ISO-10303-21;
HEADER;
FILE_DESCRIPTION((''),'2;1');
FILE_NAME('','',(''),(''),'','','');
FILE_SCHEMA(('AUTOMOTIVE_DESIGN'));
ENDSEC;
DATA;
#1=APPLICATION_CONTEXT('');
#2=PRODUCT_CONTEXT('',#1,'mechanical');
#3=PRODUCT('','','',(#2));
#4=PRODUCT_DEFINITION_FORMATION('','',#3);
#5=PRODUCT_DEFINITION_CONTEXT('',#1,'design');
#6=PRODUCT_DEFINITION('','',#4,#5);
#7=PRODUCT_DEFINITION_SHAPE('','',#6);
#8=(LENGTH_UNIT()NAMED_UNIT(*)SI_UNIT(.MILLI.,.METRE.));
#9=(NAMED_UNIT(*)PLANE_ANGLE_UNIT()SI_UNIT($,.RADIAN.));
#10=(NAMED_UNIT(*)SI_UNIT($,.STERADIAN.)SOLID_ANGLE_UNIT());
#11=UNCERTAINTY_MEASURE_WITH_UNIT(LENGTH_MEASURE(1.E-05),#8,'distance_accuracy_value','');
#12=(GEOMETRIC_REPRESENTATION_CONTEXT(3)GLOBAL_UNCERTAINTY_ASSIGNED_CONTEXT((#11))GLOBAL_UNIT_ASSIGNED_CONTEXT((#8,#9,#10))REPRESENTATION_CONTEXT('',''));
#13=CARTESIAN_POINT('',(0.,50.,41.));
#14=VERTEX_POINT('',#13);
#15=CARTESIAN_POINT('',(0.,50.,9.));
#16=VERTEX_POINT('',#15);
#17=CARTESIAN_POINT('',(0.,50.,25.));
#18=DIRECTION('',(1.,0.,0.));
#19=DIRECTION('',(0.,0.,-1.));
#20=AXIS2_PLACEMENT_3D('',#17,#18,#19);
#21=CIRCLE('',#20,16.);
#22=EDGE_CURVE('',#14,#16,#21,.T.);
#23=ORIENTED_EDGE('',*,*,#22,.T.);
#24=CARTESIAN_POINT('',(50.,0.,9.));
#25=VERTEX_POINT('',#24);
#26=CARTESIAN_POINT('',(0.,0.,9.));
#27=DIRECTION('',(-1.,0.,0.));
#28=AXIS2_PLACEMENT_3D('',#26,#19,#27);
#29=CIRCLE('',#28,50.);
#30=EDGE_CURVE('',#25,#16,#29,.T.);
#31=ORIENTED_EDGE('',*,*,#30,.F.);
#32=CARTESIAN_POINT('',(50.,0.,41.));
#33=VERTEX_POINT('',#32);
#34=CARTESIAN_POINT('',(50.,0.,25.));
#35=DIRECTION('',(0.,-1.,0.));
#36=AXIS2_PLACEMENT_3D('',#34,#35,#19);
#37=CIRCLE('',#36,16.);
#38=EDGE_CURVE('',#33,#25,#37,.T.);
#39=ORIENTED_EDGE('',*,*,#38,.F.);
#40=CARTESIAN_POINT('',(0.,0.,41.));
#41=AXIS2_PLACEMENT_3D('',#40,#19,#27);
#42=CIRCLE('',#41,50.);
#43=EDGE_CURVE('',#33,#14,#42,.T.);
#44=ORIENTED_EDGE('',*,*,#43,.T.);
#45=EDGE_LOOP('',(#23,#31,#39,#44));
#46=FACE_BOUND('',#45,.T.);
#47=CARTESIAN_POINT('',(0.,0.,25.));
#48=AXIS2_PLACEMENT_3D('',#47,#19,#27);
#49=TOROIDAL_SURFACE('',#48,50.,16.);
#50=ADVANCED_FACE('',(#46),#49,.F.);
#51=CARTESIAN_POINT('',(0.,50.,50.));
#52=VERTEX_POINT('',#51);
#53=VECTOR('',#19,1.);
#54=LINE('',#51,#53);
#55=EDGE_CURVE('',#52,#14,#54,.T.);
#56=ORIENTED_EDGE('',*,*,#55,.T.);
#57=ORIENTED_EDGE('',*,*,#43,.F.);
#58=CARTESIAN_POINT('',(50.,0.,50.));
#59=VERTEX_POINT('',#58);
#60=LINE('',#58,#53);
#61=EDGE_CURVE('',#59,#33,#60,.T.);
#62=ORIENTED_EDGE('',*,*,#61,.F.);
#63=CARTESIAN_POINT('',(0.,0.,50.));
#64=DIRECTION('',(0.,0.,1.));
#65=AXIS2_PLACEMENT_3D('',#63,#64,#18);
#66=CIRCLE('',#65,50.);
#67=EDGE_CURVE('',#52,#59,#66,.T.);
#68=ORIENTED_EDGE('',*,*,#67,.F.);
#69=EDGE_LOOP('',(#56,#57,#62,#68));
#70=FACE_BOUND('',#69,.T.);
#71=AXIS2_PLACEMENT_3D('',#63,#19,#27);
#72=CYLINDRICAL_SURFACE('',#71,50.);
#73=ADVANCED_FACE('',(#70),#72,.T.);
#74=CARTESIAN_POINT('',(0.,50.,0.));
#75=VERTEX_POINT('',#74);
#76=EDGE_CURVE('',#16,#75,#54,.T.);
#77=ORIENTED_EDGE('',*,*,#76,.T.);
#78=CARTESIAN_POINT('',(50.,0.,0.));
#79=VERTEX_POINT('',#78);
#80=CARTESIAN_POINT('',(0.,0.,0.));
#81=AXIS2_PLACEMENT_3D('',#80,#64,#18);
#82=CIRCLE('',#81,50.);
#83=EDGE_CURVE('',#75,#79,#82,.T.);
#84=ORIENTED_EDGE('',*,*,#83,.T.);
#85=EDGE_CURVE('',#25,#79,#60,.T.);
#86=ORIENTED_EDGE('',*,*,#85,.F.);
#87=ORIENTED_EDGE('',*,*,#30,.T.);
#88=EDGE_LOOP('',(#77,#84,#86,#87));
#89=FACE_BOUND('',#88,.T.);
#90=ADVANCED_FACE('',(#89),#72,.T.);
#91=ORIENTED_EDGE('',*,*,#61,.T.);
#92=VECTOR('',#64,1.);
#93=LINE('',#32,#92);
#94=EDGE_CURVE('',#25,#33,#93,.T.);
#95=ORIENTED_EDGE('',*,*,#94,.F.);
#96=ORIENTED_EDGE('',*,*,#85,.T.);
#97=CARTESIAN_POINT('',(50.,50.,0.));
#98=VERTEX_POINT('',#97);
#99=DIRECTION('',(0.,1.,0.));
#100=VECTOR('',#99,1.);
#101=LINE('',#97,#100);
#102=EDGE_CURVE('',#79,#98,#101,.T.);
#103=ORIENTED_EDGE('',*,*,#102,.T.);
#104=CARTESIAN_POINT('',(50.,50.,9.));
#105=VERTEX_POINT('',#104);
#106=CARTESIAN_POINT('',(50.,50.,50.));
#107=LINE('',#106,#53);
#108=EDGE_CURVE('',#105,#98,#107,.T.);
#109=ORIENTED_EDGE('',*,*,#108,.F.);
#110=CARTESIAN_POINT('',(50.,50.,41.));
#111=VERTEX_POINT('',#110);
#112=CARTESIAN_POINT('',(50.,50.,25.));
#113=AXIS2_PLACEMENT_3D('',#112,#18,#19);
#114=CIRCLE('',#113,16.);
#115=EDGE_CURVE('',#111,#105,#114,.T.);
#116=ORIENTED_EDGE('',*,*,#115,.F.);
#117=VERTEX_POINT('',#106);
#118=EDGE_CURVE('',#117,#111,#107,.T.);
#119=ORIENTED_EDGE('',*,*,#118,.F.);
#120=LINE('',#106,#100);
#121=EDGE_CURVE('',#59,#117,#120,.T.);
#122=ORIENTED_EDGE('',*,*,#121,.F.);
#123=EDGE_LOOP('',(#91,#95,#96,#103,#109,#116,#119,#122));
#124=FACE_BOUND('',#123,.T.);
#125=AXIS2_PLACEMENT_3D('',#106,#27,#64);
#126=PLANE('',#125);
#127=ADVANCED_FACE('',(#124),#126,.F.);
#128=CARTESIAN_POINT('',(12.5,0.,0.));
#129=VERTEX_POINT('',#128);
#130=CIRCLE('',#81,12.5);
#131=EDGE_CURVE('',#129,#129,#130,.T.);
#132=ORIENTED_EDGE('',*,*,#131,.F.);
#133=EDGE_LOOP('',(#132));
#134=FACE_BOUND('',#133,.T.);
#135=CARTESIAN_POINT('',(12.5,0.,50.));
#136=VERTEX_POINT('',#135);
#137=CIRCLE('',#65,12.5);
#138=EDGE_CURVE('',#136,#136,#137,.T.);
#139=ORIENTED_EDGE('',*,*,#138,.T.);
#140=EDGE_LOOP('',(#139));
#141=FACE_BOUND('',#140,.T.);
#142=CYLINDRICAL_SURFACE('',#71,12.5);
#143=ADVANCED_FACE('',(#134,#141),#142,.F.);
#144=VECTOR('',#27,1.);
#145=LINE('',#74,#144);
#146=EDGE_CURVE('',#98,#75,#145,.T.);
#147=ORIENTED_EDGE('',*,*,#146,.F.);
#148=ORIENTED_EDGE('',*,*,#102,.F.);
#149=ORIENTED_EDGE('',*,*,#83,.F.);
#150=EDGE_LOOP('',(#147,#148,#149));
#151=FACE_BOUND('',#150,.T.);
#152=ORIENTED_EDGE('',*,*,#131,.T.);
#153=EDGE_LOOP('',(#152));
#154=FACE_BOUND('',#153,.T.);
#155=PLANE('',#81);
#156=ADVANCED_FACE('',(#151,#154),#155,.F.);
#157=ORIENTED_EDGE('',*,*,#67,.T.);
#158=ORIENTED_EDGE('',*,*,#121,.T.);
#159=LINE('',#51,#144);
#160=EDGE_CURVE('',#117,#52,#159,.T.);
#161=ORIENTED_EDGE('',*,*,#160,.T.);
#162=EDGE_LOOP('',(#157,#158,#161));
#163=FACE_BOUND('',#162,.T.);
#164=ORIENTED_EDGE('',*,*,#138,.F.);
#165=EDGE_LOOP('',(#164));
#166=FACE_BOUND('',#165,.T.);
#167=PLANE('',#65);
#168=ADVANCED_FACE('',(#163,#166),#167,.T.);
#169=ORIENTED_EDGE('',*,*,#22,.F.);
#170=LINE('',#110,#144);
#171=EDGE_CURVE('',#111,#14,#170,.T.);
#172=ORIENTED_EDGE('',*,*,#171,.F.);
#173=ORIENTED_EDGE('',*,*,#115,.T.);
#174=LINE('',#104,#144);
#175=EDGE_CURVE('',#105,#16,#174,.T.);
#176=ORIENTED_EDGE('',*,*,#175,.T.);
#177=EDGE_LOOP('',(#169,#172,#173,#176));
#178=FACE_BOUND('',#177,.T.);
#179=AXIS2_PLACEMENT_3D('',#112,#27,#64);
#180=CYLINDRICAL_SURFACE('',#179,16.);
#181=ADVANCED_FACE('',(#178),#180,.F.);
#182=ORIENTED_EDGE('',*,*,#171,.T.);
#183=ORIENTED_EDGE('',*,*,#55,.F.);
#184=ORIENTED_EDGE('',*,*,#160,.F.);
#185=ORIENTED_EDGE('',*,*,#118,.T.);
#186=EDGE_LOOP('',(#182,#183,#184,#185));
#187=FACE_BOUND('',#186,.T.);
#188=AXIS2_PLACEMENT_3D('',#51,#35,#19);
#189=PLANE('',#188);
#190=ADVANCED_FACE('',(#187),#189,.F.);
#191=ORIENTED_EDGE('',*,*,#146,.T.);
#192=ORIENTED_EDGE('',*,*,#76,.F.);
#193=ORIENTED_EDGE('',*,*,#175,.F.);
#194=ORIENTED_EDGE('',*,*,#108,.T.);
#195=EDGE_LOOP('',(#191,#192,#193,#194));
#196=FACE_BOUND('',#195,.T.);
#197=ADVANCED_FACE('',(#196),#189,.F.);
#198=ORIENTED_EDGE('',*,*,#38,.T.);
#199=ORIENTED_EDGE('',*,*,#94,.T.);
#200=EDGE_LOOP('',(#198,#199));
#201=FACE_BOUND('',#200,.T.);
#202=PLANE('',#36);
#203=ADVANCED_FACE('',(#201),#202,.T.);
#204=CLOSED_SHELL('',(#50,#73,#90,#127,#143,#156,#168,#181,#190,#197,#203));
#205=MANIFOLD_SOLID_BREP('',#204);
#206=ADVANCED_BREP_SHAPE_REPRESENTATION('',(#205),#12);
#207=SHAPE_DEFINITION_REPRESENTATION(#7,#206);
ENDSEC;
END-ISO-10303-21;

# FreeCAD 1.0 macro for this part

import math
import FreeCAD as App
import Part
import Sketcher

V = App.Vector
Q = App.Units.Quantity

doc = App.newDocument("Part")
body = doc.addObject("PartDesign::Body", "Body")

# Sketch on XY plane
sketch1 = body.newObject("Sketcher::SketchObject", "Sketch")
sketch1.AttachmentSupport = (doc.getObject("XY_Plane"), [""])
sketch1.MapMode = "FlatFace"
sketch1.addGeometry(Part.LineSegment(V(50, 50, 0), V(0, 50, 0)), False)
sketch1.addGeometry(Part.ArcOfCircle(Part.Circle(V(0, 0, 0), V(0, 0, 1), 50), math.radians(90), math.radians(360)), False)
sketch1.addGeometry(Part.LineSegment(V(50, 0, 0), V(50, 50, 0)), False)
sketch1.addGeometry(Part.Circle(V(0, 0, 0), V(0, 0, 1), 12), False)
sketch1.addConstraint(Sketcher.Constraint("Tangent", 0, 2, 1, 1))
sketch1.addConstraint(Sketcher.Constraint("Tangent", 1, 2, 2, 1))
sketch1.addConstraint(Sketcher.Constraint("Coincident", 2, 2, 0, 1))
sketch1.addConstraint(Sketcher.Constraint("Horizontal", 0))
sketch1.addConstraint(Sketcher.Constraint("Vertical", 2))
sketch1.addConstraint(Sketcher.Constraint("Coincident", 1, 3, -1, 1))
sketch1.addConstraint(Sketcher.Constraint("Coincident", 3, 3, -1, 1))
sketch1.addConstraint(Sketcher.Constraint("Diameter", 3, Q("25 mm")))
sketch1.addConstraint(Sketcher.Constraint("Radius", 1, Q("50 mm")))
pad1 = body.newObject("PartDesign::Pad", "Pad")
pad1.Profile = sketch1
pad1.Length = 50

# Sketch on YZ plane
sketch2 = body.newObject("Sketcher::SketchObject", "Sketch001")
sketch2.AttachmentSupport = (doc.getObject("YZ_Plane"), [""])
sketch2.MapMode = "FlatFace"
sketch2.addGeometry(Part.LineSegment(V(50, 9, 0), V(50, 41, 0)), False)
sketch2.addGeometry(Part.ArcOfCircle(Part.Circle(V(50, 25, 0), V(0, 0, 1), 16), math.radians(90), math.radians(270)), False)
sketch2.addConstraint(Sketcher.Constraint("Coincident", 0, 1, 1, 2))
sketch2.addConstraint(Sketcher.Constraint("Coincident", 1, 1, 0, 2))
sketch2.addConstraint(Sketcher.Constraint("Vertical", 0))
sketch2.addConstraint(Sketcher.Constraint("Vertical", 1, 3, 0, 1))
sketch2.addConstraint(Sketcher.Constraint("Radius", 1, Q("16 mm")))
sketch2.addConstraint(Sketcher.Constraint("DistanceX", -1, 1, 1, 3, Q("50 mm")))
sketch2.addConstraint(Sketcher.Constraint("DistanceY", -1, 1, 1, 3, Q("25 mm")))
groove = body.newObject("PartDesign::Groove", "Groove")
groove.Profile = sketch2
groove.ReferenceAxis = (sketch2, ["V_Axis"])
groove.Angle = 270

# Sketch on YZ plane
sketch3 = body.newObject("Sketcher::SketchObject", "Sketch002")
sketch3.AttachmentSupport = (doc.getObject("YZ_Plane"), [""])
sketch3.MapMode = "FlatFace"
sketch3.addGeometry(Part.LineSegment(V(50, 9, 0), V(50, 41, 0)), False)
sketch3.addGeometry(Part.ArcOfCircle(Part.Circle(V(50, 25, 0), V(0, 0, 1), 16), math.radians(90), math.radians(270)), False)
sketch3.addConstraint(Sketcher.Constraint("Coincident", 0, 1, 1, 2))
sketch3.addConstraint(Sketcher.Constraint("Coincident", 1, 1, 0, 2))
sketch3.addConstraint(Sketcher.Constraint("Vertical", 0))
sketch3.addConstraint(Sketcher.Constraint("Vertical", 1, 3, 0, 1))
sketch3.addConstraint(Sketcher.Constraint("Radius", 1, Q("16 mm")))
sketch3.addConstraint(Sketcher.Constraint("DistanceX", -1, 1, 1, 3, Q("50 mm")))
sketch3.addConstraint(Sketcher.Constraint("DistanceY", -1, 1, 1, 3, Q("25 mm")))
pocket1 = body.newObject("PartDesign::Pocket", "Pocket")
pocket1.Profile = sketch3
pocket1.Length = 50
pocket1.Reversed = True

doc.recompute()
